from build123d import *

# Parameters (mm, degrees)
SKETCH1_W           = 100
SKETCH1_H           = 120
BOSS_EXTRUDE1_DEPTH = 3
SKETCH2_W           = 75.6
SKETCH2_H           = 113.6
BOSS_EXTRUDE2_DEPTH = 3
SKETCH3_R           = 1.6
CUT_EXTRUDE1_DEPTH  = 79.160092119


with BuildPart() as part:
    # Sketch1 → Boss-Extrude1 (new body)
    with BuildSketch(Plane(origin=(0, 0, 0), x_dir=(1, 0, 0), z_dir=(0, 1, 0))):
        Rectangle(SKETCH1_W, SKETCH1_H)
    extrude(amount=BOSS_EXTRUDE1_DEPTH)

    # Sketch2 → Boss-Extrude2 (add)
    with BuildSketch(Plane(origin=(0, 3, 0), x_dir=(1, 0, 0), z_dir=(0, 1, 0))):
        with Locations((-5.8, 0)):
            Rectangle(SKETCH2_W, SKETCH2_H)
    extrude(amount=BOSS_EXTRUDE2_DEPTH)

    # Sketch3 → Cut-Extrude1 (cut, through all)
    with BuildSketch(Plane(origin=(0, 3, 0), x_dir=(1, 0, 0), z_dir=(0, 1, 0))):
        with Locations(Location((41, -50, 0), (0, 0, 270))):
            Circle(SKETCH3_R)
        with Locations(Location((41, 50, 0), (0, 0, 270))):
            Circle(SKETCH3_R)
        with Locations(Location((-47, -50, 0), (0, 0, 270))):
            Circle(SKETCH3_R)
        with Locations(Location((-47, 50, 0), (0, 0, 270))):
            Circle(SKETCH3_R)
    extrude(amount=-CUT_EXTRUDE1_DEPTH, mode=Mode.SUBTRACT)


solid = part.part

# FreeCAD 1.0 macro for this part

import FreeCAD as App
import Part
import Sketcher
from FreeCAD import Vector
Q = App.Units.Quantity

doc = App.newDocument("Part")
params = doc.addObject("Spreadsheet::Sheet", "Params")
for row, (alias, value) in enumerate([
    ("sketch1_width", "100 mm"),
    ("sketch1_height", "120 mm"),
    ("pad1_length", "3 mm"),
    ("sketch2_width", "75.6 mm"),
    ("sketch2_height", "113.6 mm"),
    ("pad2_length", "3 mm"),
    ("sketch3_diameter", "3.2 mm"),
], start=1):
    params.set(f"A{row}", alias)
    params.set(f"B{row}", "=" + value)
    params.setAlias(f"B{row}", alias)

body = doc.addObject("PartDesign::Body", "Body")

sketch1 = body.newObject("Sketcher::SketchObject", "Sketch")
sketch1.AttachmentSupport = (doc.getObject("XZ_Plane"), [""])
sketch1.MapMode = "FlatFace"
sketch1.addGeometry([
    Part.LineSegment(Vector(-50, -60, 0), Vector(-50, 60, 0)),
    Part.LineSegment(Vector(-50, 60, 0), Vector(50, 60, 0)),
    Part.LineSegment(Vector(50, 60, 0), Vector(50, -60, 0)),
    Part.LineSegment(Vector(50, -60, 0), Vector(-50, -60, 0)),
], False)
sketch1.addConstraint([
    Sketcher.Constraint("Coincident", 0, 2, 1, 1),
    Sketcher.Constraint("Coincident", 1, 2, 2, 1),
    Sketcher.Constraint("Coincident", 2, 2, 3, 1),
    Sketcher.Constraint("Coincident", 3, 2, 0, 1),
    Sketcher.Constraint("Vertical", 0),
    Sketcher.Constraint("Horizontal", 1),
    Sketcher.Constraint("Vertical", 2),
    Sketcher.Constraint("Horizontal", 3),
    Sketcher.Constraint("Symmetric", 0, 2, 2, 2, -1, 1),
    Sketcher.Constraint("DistanceX", 1, 1, 1, 2, Q("100 mm")),
    Sketcher.Constraint("DistanceY", 0, 1, 0, 2, Q("120 mm")),
])
sketch1.setExpression("Constraints[9]", "Params.sketch1_width")
sketch1.setExpression("Constraints[10]", "Params.sketch1_height")
pad1 = body.newObject("PartDesign::Pad", "Pad")
pad1.Profile = sketch1
pad1.setExpression("Length", "Params.pad1_length")
pad1.Reversed = True

sketch2 = body.newObject("Sketcher::SketchObject", "Sketch001")
sketch2.AttachmentSupport = (doc.getObject("XZ_Plane"), [""])
sketch2.MapMode = "FlatFace"
sketch2.AttachmentOffset = App.Placement(Vector(0, 0, -3), App.Rotation())
sketch2.addGeometry([
    Part.LineSegment(Vector(-43.6, -56.8, 0), Vector(-43.6, 56.8, 0)),
    Part.LineSegment(Vector(-43.6, 56.8, 0), Vector(32, 56.8, 0)),
    Part.LineSegment(Vector(32, 56.8, 0), Vector(32, -56.8, 0)),
    Part.LineSegment(Vector(32, -56.8, 0), Vector(-43.6, -56.8, 0)),
], False)
sketch2.addConstraint([
    Sketcher.Constraint("Coincident", 0, 2, 1, 1),
    Sketcher.Constraint("Coincident", 1, 2, 2, 1),
    Sketcher.Constraint("Coincident", 2, 2, 3, 1),
    Sketcher.Constraint("Coincident", 3, 2, 0, 1),
    Sketcher.Constraint("Vertical", 0),
    Sketcher.Constraint("Horizontal", 1),
    Sketcher.Constraint("Vertical", 2),
    Sketcher.Constraint("Horizontal", 3),
    Sketcher.Constraint("DistanceX", 1, 1, 1, 2, Q("75.6 mm")),
    Sketcher.Constraint("DistanceY", 0, 1, 0, 2, Q("113.6 mm")),
    Sketcher.Constraint("DistanceX", -1, 1, 1, 2, Q("32 mm")),
    Sketcher.Constraint("DistanceY", -1, 1, 0, 2, Q("56.8 mm")),
])
sketch2.setExpression("Constraints[8]", "Params.sketch2_width")
sketch2.setExpression("Constraints[9]", "Params.sketch2_height")
pad2 = body.newObject("PartDesign::Pad", "Pad001")
pad2.Profile = sketch2
pad2.setExpression("Length", "Params.pad2_length")
pad2.Reversed = True

sketch3 = body.newObject("Sketcher::SketchObject", "Sketch002")
sketch3.AttachmentSupport = (doc.getObject("XZ_Plane"), [""])
sketch3.MapMode = "FlatFace"
sketch3.AttachmentOffset = App.Placement(Vector(0, 0, -3), App.Rotation())
sketch3.addGeometry([
    Part.Circle(Vector(41, 50, 0), Vector(0, 0, 1), 1.6),
    Part.Circle(Vector(41, -50, 0), Vector(0, 0, 1), 1.6),
    Part.Circle(Vector(-47, 50, 0), Vector(0, 0, 1), 1.6),
    Part.Circle(Vector(-47, -50, 0), Vector(0, 0, 1), 1.6),
], False)
sketch3.addConstraint([
    Sketcher.Constraint("Equal", 0, 1),
    Sketcher.Constraint("Equal", 1, 2),
    Sketcher.Constraint("Equal", 2, 3),
    Sketcher.Constraint("Symmetric", 0, 3, 1, 3, -1),
    Sketcher.Constraint("Symmetric", 2, 3, 3, 3, -1),
    Sketcher.Constraint("Horizontal", 0, 3, 2, 3),
    Sketcher.Constraint("Diameter", 0, Q("3.2 mm")),
    Sketcher.Constraint("DistanceX", -1, 1, 0, 3, Q("41 mm")),
    Sketcher.Constraint("DistanceY", -1, 1, 0, 3, Q("50 mm")),
    Sketcher.Constraint("DistanceX", 2, 3, -1, 1, Q("47 mm")),
])
sketch3.setExpression("Constraints[6]", "Params.sketch3_diameter")
pocket1 = body.newObject("PartDesign::Pocket", "Pocket")
pocket1.Profile = sketch3
pocket1.Type = "ThroughAll"
pocket1.Reversed = True

doc.recompute()
